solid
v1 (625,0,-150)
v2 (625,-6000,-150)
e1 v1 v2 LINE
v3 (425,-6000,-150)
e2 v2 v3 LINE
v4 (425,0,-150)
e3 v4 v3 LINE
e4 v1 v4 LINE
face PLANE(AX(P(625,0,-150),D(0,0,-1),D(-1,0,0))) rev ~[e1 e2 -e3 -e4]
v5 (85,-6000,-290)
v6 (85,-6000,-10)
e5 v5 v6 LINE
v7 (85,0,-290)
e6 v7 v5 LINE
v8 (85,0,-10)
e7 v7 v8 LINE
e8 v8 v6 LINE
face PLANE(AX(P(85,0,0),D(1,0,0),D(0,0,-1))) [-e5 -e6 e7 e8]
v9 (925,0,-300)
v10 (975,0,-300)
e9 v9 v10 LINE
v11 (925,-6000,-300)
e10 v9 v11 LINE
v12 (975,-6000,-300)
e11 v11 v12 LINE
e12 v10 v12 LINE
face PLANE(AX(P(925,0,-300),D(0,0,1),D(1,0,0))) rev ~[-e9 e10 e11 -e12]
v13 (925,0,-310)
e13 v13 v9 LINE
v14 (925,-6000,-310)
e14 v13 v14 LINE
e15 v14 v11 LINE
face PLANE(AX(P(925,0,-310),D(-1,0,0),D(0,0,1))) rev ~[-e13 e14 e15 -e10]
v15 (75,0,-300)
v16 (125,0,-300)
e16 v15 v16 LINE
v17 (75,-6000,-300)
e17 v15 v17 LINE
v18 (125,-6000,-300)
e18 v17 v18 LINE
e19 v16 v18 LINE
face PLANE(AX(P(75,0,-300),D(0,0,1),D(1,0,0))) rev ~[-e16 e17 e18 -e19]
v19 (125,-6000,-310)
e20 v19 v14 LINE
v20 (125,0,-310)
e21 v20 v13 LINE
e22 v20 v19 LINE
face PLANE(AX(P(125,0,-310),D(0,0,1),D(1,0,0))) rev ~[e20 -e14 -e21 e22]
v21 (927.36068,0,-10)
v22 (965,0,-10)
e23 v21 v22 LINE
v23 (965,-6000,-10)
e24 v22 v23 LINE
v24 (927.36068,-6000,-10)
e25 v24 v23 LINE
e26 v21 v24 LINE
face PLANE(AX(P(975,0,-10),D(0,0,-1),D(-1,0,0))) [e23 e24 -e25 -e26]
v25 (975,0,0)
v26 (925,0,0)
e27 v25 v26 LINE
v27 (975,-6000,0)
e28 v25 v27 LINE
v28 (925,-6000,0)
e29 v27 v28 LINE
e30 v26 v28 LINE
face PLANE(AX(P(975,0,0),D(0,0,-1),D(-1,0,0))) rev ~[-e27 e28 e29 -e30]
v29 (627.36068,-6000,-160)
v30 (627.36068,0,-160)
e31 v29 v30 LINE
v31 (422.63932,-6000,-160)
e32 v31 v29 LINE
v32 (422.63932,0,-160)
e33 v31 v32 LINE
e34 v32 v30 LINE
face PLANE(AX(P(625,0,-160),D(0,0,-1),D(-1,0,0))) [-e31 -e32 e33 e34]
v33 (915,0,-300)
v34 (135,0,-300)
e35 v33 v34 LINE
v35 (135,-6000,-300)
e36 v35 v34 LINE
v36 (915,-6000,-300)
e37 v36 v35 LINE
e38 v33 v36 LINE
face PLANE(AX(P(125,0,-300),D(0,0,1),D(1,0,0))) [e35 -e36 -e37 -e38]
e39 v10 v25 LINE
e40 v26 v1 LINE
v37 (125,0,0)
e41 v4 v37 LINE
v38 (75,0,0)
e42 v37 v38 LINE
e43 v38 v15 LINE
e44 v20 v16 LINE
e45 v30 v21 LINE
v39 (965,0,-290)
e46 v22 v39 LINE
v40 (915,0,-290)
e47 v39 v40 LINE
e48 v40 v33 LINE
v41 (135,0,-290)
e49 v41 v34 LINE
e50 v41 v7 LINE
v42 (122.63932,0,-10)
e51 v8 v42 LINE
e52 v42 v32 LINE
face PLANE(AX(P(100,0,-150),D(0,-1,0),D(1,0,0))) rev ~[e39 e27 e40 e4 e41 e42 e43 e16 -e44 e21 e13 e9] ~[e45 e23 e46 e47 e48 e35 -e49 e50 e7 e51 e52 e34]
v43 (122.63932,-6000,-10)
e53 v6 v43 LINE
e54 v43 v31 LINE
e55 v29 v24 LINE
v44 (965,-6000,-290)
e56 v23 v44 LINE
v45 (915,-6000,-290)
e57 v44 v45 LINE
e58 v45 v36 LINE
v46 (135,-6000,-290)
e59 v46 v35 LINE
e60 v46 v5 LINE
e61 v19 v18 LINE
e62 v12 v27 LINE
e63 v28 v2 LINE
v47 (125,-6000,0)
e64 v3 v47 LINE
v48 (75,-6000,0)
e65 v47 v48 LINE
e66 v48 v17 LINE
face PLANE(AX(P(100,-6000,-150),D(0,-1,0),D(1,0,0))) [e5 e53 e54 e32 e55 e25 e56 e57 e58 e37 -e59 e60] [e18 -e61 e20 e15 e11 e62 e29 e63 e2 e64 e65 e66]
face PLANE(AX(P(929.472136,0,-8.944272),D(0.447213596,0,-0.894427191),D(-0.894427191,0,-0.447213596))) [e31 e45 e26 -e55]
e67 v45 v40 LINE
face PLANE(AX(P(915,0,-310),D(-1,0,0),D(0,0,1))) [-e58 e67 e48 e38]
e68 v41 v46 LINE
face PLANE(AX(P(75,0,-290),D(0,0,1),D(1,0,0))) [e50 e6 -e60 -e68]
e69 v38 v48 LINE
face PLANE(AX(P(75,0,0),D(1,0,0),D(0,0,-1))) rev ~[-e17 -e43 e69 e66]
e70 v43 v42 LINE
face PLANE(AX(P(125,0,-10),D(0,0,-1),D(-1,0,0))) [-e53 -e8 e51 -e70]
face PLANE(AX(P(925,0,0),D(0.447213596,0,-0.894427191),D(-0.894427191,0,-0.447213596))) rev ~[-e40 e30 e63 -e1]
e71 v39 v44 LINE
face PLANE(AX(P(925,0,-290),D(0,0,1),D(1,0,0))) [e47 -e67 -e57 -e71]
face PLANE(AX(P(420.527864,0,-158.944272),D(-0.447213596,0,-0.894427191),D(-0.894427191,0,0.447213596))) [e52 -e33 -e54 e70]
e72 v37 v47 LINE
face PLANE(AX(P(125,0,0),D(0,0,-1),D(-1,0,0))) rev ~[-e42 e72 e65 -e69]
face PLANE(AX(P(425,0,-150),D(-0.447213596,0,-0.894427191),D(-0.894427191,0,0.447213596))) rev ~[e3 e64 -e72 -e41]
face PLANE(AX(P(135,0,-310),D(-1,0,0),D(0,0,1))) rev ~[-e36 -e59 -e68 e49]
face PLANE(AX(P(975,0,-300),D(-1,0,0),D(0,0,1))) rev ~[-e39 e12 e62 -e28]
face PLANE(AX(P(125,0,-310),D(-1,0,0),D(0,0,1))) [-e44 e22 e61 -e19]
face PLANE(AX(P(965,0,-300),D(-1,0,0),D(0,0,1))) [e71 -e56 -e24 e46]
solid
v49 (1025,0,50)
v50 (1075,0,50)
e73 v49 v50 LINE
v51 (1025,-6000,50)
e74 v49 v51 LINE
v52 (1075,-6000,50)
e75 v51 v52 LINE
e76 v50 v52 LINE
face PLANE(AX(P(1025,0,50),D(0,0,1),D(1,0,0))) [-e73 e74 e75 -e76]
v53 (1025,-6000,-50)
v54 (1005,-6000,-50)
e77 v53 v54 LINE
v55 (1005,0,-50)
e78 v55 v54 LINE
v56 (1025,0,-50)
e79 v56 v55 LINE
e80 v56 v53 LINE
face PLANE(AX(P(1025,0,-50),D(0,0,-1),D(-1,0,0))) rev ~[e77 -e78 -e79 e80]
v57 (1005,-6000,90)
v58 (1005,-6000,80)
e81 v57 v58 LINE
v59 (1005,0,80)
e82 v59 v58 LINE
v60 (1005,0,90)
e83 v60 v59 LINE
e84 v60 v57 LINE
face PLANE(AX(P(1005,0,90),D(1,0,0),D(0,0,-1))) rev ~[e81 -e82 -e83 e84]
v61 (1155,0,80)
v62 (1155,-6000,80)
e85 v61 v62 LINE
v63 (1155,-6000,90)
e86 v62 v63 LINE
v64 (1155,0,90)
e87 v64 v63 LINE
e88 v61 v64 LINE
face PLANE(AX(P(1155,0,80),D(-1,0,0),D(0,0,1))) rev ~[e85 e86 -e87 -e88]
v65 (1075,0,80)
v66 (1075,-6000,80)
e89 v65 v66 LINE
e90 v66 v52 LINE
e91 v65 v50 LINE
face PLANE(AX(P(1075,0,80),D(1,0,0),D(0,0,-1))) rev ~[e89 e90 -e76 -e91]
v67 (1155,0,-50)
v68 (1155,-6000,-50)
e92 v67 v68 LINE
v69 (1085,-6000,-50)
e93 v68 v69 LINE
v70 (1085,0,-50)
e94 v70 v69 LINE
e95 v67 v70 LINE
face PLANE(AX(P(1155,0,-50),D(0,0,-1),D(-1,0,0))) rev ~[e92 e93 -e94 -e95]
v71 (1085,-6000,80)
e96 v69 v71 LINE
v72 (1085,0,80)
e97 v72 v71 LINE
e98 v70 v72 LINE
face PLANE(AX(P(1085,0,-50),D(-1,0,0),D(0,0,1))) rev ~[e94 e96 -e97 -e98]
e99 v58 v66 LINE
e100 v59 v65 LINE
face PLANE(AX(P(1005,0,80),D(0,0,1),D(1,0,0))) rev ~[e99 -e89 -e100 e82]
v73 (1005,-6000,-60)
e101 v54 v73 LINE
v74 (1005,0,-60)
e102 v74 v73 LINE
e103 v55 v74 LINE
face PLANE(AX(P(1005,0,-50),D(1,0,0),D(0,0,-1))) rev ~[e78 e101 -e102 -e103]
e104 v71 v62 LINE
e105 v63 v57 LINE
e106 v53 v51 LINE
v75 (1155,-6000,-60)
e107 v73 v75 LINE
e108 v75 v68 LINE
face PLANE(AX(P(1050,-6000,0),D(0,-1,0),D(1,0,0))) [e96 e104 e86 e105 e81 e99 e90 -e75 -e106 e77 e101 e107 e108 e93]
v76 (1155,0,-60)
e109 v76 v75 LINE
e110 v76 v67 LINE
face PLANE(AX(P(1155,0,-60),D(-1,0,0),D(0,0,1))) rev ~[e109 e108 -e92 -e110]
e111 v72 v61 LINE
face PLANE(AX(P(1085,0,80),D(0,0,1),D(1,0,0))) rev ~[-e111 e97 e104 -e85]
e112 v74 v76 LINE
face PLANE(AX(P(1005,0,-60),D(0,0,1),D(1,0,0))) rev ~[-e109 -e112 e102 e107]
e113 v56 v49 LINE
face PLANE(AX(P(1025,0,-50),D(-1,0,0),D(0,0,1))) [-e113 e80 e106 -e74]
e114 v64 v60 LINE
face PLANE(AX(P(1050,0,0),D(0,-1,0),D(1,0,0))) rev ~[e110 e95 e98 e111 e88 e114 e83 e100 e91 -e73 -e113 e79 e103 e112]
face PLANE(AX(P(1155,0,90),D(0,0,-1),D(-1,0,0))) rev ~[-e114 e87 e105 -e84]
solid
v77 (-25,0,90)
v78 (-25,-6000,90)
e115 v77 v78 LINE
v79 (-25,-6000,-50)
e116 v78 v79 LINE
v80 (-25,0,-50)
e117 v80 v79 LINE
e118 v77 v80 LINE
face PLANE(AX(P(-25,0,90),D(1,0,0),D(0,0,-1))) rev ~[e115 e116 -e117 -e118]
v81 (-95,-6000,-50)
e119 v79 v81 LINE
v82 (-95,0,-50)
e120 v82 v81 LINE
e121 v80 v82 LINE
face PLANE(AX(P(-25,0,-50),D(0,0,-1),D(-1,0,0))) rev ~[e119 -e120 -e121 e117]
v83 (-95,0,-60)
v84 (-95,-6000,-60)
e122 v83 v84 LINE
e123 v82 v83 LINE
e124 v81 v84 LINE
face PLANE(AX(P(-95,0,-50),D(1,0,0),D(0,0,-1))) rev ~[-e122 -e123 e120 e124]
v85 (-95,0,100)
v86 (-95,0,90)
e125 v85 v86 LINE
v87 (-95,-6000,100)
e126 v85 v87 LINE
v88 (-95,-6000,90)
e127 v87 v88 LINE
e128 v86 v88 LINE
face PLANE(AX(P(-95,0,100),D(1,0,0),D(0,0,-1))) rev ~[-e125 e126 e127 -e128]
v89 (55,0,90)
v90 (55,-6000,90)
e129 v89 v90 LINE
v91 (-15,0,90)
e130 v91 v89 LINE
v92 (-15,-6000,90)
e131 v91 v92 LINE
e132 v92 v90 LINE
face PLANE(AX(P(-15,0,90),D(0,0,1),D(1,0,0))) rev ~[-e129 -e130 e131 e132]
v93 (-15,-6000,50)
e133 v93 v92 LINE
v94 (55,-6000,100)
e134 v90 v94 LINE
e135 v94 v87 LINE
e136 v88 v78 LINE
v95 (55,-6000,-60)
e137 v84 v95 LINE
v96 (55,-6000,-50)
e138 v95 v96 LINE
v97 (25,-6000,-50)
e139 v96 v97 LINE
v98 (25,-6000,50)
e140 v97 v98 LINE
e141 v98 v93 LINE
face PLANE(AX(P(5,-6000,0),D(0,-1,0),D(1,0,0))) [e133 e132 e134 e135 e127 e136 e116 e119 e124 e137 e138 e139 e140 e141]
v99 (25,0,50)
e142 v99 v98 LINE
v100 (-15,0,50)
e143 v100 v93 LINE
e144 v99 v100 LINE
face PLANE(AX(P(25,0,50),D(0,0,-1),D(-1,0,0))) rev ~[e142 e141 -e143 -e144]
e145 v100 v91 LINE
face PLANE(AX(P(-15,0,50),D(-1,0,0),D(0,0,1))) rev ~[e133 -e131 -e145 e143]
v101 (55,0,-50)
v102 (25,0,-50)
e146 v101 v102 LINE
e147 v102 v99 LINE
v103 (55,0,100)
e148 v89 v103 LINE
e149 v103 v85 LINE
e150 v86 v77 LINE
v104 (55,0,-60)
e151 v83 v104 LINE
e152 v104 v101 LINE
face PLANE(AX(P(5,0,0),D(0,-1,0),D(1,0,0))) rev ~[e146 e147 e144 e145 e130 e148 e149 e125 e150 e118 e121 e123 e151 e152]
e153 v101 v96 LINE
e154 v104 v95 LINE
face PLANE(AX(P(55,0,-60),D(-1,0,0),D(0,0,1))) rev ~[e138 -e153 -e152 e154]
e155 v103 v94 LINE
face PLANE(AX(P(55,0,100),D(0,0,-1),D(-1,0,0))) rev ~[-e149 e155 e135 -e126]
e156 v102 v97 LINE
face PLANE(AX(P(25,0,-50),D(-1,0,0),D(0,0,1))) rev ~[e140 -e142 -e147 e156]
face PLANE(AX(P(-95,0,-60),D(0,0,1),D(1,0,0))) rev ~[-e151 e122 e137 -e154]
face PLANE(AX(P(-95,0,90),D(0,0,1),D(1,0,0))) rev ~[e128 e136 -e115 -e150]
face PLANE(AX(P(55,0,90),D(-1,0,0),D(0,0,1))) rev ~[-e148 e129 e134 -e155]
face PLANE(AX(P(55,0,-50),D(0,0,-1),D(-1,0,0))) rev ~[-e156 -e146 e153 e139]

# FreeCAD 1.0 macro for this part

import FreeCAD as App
import Part
import Sketcher
from FreeCAD import Vector
Q = App.Units.Quantity


def faces_at(feature, points):
    """Names of the faces that lie closest to the given points."""
    faces = feature.Shape.Faces
    near = lambda p: min(range(len(faces)), key=lambda i: faces[i].distToShape(Part.Vertex(*p))[0])
    return sorted({f"Face{near(p) + 1}" for p in points})


def add_polygon(sketch, points):
    """Adds a closed chain of lines whose ends are joined by coincident constraints."""
    first, n = sketch.GeometryCount, len(points)
    for a, b in zip(points, points[1:] + points[:1]):
        sketch.addGeometry(Part.LineSegment(App.Vector(*a, 0), App.Vector(*b, 0)), False)
    for i in range(n):
        sketch.addConstraint(Sketcher.Constraint("Coincident", first + i, 2, first + (i + 1) % n, 1))

doc = App.newDocument("Part")
body = doc.addObject("PartDesign::Body", "Body")

# Sketch on XZ plane
sketch1 = body.newObject("Sketcher::SketchObject", "Sketch")
sketch1.AttachmentSupport = (doc.getObject("XZ_Plane"), [""])
sketch1.MapMode = "FlatFace"
add_polygon(sketch1, [(25, -50), (25, 50), (-15, 50), (-15, 90), (55, 90), (55, 100), (-95, 100), (-95, 90), (-25, 90), (-25, -50), (-95, -50), (-95, -60), (55, -60), (55, -50)])  # lines 0-13
sketch1.addConstraint(Sketcher.Constraint("Vertical", 0))
sketch1.addConstraint(Sketcher.Constraint("Horizontal", 1))
sketch1.addConstraint(Sketcher.Constraint("Vertical", 2))
sketch1.addConstraint(Sketcher.Constraint("Horizontal", 3))
sketch1.addConstraint(Sketcher.Constraint("Vertical", 4))
sketch1.addConstraint(Sketcher.Constraint("Horizontal", 5))
sketch1.addConstraint(Sketcher.Constraint("Vertical", 6))
sketch1.addConstraint(Sketcher.Constraint("Horizontal", 7))
sketch1.addConstraint(Sketcher.Constraint("Vertical", 8))
sketch1.addConstraint(Sketcher.Constraint("Horizontal", 9))
sketch1.addConstraint(Sketcher.Constraint("Vertical", 10))
sketch1.addConstraint(Sketcher.Constraint("Horizontal", 11))
sketch1.addConstraint(Sketcher.Constraint("Vertical", 12))
sketch1.addConstraint(Sketcher.Constraint("Horizontal", 13))
sketch1.addConstraint(Sketcher.Constraint("Symmetric", 0, 2, 8, 2, -1, 1))
sketch1.addConstraint(Sketcher.Constraint("Horizontal", 3, 2, 6, 2))
sketch1.addConstraint(Sketcher.Constraint("Horizontal", 9, 2, 12, 2))
sketch1.addConstraint(Sketcher.Constraint("Vertical", 6, 2, 9, 2))
sketch1.addConstraint(Sketcher.Constraint("Vertical", 4, 2, 11, 2))
sketch1.addConstraint(Sketcher.Constraint("Equal", 3, 7))
sketch1.addConstraint(Sketcher.Constraint("Equal", 1, 2))
sketch1.addConstraint(Sketcher.Constraint("Equal", 6, 10))
sketch1.addConstraint(Sketcher.Constraint("DistanceX", 1, 2, 1, 1, Q("40 mm")))
sketch1.addConstraint(Sketcher.Constraint("DistanceX", 3, 1, 3, 2, Q("70 mm")))
sketch1.addConstraint(Sketcher.Constraint("DistanceX", 5, 2, 5, 1, Q("150 mm")))
sketch1.addConstraint(Sketcher.Constraint("DistanceY", 0, 1, 0, 2, Q("100 mm")))
sketch1.addConstraint(Sketcher.Constraint("DistanceY", 4, 1, 4, 2, Q("10 mm")))
pad1 = body.newObject("PartDesign::Pad", "Pad")
pad1.Profile = sketch1
pad1.Length = 6000
body2 = doc.addObject("PartDesign::Body", "Body001")

# Sketch on XZ plane
sketch2 = body2.newObject("Sketcher::SketchObject", "Sketch001")
sketch2.AttachmentSupport = (doc.getObject("XZ_Plane001"), [""])
sketch2.MapMode = "FlatFace"
add_polygon(sketch2, [(1025, 50), (1025, -50), (1005, -50), (1005, -60), (1155, -60), (1155, -50), (1085, -50), (1085, 80), (1155, 80), (1155, 90), (1005, 90), (1005, 80), (1075, 80), (1075, 50)])  # lines 0-13
sketch2.addConstraint(Sketcher.Constraint("Vertical", 0))
sketch2.addConstraint(Sketcher.Constraint("Horizontal", 1))
sketch2.addConstraint(Sketcher.Constraint("Vertical", 2))
sketch2.addConstraint(Sketcher.Constraint("Horizontal", 3))
sketch2.addConstraint(Sketcher.Constraint("Vertical", 4))
sketch2.addConstraint(Sketcher.Constraint("Horizontal", 5))
sketch2.addConstraint(Sketcher.Constraint("Vertical", 6))
sketch2.addConstraint(Sketcher.Constraint("Horizontal", 7))
sketch2.addConstraint(Sketcher.Constraint("Vertical", 8))
sketch2.addConstraint(Sketcher.Constraint("Horizontal", 9))
sketch2.addConstraint(Sketcher.Constraint("Vertical", 10))
sketch2.addConstraint(Sketcher.Constraint("Horizontal", 11))
sketch2.addConstraint(Sketcher.Constraint("Vertical", 12))
sketch2.addConstraint(Sketcher.Constraint("Horizontal", 13))
sketch2.addConstraint(Sketcher.Constraint("Horizontal", 1, 2, 4, 2))
sketch2.addConstraint(Sketcher.Constraint("Horizontal", 7, 2, 10, 2))
sketch2.addConstraint(Sketcher.Constraint("Vertical", 4, 2, 7, 2))
sketch2.addConstraint(Sketcher.Constraint("Vertical", 2, 2, 9, 2))
sketch2.addConstraint(Sketcher.Constraint("Equal", 7, 11))
sketch2.addConstraint(Sketcher.Constraint("Equal", 4, 8))
sketch2.addConstraint(Sketcher.Constraint("DistanceX", 1, 2, 1, 1, Q("20 mm")))
sketch2.addConstraint(Sketcher.Constraint("DistanceX", 3, 1, 3, 2, Q("150 mm")))
sketch2.addConstraint(Sketcher.Constraint("DistanceX", 5, 2, 5, 1, Q("70 mm")))
sketch2.addConstraint(Sketcher.Constraint("DistanceY", 0, 2, 0, 1, Q("100 mm")))
sketch2.addConstraint(Sketcher.Constraint("DistanceY", 2, 2, 2, 1, Q("10 mm")))
sketch2.addConstraint(Sketcher.Constraint("DistanceY", 6, 1, 6, 2, Q("130 mm")))
sketch2.addConstraint(Sketcher.Constraint("DistanceX", -1, 1, 0, 2, Q("1025 mm")))
sketch2.addConstraint(Sketcher.Constraint("DistanceY", 0, 2, -1, 1, Q("50 mm")))
pad2 = body2.newObject("PartDesign::Pad", "Pad001")
pad2.Profile = sketch2
pad2.Length = 6000
body3 = doc.addObject("PartDesign::Body", "Body002")

# Sketch on XZ plane
sketch3 = body3.newObject("Sketcher::SketchObject", "Sketch002")
sketch3.AttachmentSupport = (doc.getObject("XZ_Plane002"), [""])
sketch3.MapMode = "FlatFace"
add_polygon(sketch3, [(125, 0), (75, 0), (75, -300), (125, -300), (125, -310), (925, -310), (925, -300), (975, -300), (975, 0), (925, 0), (625, -150), (425, -150)])  # lines 0-11
sketch3.addConstraint(Sketcher.Constraint("Horizontal", 0))
sketch3.addConstraint(Sketcher.Constraint("Vertical", 1))
sketch3.addConstraint(Sketcher.Constraint("Horizontal", 2))
sketch3.addConstraint(Sketcher.Constraint("Vertical", 3))
sketch3.addConstraint(Sketcher.Constraint("Horizontal", 4))
sketch3.addConstraint(Sketcher.Constraint("Vertical", 5))
sketch3.addConstraint(Sketcher.Constraint("Horizontal", 6))
sketch3.addConstraint(Sketcher.Constraint("Vertical", 7))
sketch3.addConstraint(Sketcher.Constraint("Horizontal", 8))
sketch3.addConstraint(Sketcher.Constraint("Horizontal", 10))
sketch3.addConstraint(Sketcher.Constraint("PointOnObject", 0, 2, -1))
sketch3.addConstraint(Sketcher.Constraint("PointOnObject", 7, 2, -1))
sketch3.addConstraint(Sketcher.Constraint("Horizontal", 2, 2, 5, 2))
sketch3.addConstraint(Sketcher.Constraint("Vertical", 5, 2, 8, 2))
sketch3.addConstraint(Sketcher.Constraint("Vertical", 3, 2, 11, 2))
sketch3.addConstraint(Sketcher.Constraint("Equal", 2, 6))
sketch3.addConstraint(Sketcher.Constraint("Equal", 9, 11))
sketch3.addConstraint(Sketcher.Constraint("DistanceX", 0, 2, 0, 1, Q("50 mm")))
sketch3.addConstraint(Sketcher.Constraint("DistanceX", 4, 1, 4, 2, Q("800 mm")))
sketch3.addConstraint(Sketcher.Constraint("DistanceX", 10, 2, 10, 1, Q("200 mm")))
sketch3.addConstraint(Sketcher.Constraint("DistanceY", 1, 2, 1, 1, Q("300 mm")))
sketch3.addConstraint(Sketcher.Constraint("DistanceY", 3, 2, 3, 1, Q("10 mm")))
sketch3.addConstraint(Sketcher.Constraint("DistanceX", -1, 1, 0, 2, Q("75 mm")))
sketch3.addConstraint(Sketcher.Constraint("DistanceY", 9, 2, -1, 1, Q("150 mm")))
pad3 = body3.newObject("PartDesign::Pad", "Pad002")
pad3.Profile = sketch3
pad3.Length = 6000
doc.recompute()

thickness = body3.newObject("PartDesign::Thickness", "Thickness")
thickness.Base = (pad3, faces_at(pad3, [(525, 0, -155), (525, -6000, -155)]))
thickness.Value = 10
thickness.Reversed = True
thickness.Join = "Intersection"

doc.recompute()
